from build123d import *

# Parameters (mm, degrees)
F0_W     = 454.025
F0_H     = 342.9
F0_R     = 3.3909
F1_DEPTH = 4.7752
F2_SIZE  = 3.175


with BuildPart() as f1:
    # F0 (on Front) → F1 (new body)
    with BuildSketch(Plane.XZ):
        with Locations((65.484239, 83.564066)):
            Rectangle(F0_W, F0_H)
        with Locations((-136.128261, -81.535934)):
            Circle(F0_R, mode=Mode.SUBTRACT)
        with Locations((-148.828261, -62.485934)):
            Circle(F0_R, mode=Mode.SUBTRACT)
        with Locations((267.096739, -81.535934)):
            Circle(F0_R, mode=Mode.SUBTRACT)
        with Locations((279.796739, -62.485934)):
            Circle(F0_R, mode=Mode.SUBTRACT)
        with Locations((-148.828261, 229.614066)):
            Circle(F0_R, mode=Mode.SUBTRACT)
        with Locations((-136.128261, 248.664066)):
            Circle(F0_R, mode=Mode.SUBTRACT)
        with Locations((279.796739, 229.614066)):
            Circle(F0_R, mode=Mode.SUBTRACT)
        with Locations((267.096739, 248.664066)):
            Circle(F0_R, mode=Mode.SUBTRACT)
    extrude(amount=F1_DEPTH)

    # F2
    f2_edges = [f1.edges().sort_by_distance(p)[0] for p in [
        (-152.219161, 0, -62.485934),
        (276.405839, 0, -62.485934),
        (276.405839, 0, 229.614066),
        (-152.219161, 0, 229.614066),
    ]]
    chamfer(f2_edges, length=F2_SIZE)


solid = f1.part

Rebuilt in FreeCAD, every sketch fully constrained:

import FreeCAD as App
import Part
import Sketcher
from FreeCAD import Vector
Q = App.Units.Quantity


def edges_at(feature, points):
    """Names of the edges that pass closest to the given points."""
    edges = feature.Shape.Edges
    near = lambda p: min(range(len(edges)), key=lambda i: edges[i].distToShape(Part.Vertex(*p))[0])
    return sorted({f"Edge{near(p) + 1}" for p in points})

doc = App.newDocument("Part")
params = doc.addObject("Spreadsheet::Sheet", "Params")
for row, (alias, value) in enumerate([
    ("sketch1_diameter", "0.267 in"),
    ("sketch1_height", "13.5 in"),
    ("sketch1_width", "17.875 in"),
    ("pad1_length", "0.188 in"),
    ("chamfer_size", "0.125 in"),
], start=1):
    params.set(f"A{row}", alias)
    params.set(f"B{row}", "=" + value)
    params.setAlias(f"B{row}", alias)

body = doc.addObject("PartDesign::Body", "Body")

sketch1 = body.newObject("Sketcher::SketchObject", "Sketch")
sketch1.AttachmentSupport = (doc.getObject("XZ_Plane"), [""])
sketch1.MapMode = "FlatFace"
sketch1.addGeometry(Part.LineSegment(Vector(-161.5, 255, 0), Vector(-161.5, -87.9, 0)), False)
sketch1.addGeometry(Part.LineSegment(Vector(-161.5, -87.9, 0), Vector(292.5, -87.9, 0)), False)
sketch1.addGeometry(Part.LineSegment(Vector(292.5, -87.9, 0), Vector(292.5, 255, 0)), False)
sketch1.addGeometry(Part.LineSegment(Vector(292.5, 255, 0), Vector(-161.5, 255, 0)), False)
sketch1.addGeometry(Part.Circle(Vector(-136.1, -81.5, 0), Vector(0, 0, 1), 3.4), False)
sketch1.addGeometry(Part.Circle(Vector(-148.8, -62.5, 0), Vector(0, 0, 1), 3.4), False)
sketch1.addGeometry(Part.Circle(Vector(267.1, -81.5, 0), Vector(0, 0, 1), 3.4), False)
sketch1.addGeometry(Part.Circle(Vector(279.8, -62.5, 0), Vector(0, 0, 1), 3.4), False)
sketch1.addGeometry(Part.Circle(Vector(-148.8, 229.6, 0), Vector(0, 0, 1), 3.4), False)
sketch1.addGeometry(Part.Circle(Vector(-136.1, 248.7, 0), Vector(0, 0, 1), 3.4), False)
sketch1.addGeometry(Part.Circle(Vector(279.8, 229.6, 0), Vector(0, 0, 1), 3.4), False)
sketch1.addGeometry(Part.Circle(Vector(267.1, 248.7, 0), Vector(0, 0, 1), 3.4), False)
sketch1.addConstraint(Sketcher.Constraint("Coincident", 0, 2, 1, 1))
sketch1.addConstraint(Sketcher.Constraint("Coincident", 1, 2, 2, 1))
sketch1.addConstraint(Sketcher.Constraint("Coincident", 2, 2, 3, 1))
sketch1.addConstraint(Sketcher.Constraint("Coincident", 3, 2, 0, 1))
sketch1.addConstraint(Sketcher.Constraint("Vertical", 0))
sketch1.addConstraint(Sketcher.Constraint("Horizontal", 1))
sketch1.addConstraint(Sketcher.Constraint("Vertical", 2))
sketch1.addConstraint(Sketcher.Constraint("Horizontal", 3))
sketch1.addConstraint(Sketcher.Constraint("Equal", 4, 5))
sketch1.addConstraint(Sketcher.Constraint("Equal", 5, 6))
sketch1.addConstraint(Sketcher.Constraint("Equal", 6, 7))
sketch1.addConstraint(Sketcher.Constraint("Equal", 7, 8))
sketch1.addConstraint(Sketcher.Constraint("Equal", 8, 9))
sketch1.addConstraint(Sketcher.Constraint("Equal", 9, 10))
sketch1.addConstraint(Sketcher.Constraint("Equal", 10, 11))
sketch1.addConstraint(Sketcher.Constraint("Horizontal", 4, 3, 6, 3))
sketch1.addConstraint(Sketcher.Constraint("Horizontal", 5, 3, 7, 3))
sketch1.addConstraint(Sketcher.Constraint("Horizontal", 8, 3, 10, 3))
sketch1.addConstraint(Sketcher.Constraint("Horizontal", 9, 3, 11, 3))
sketch1.addConstraint(Sketcher.Constraint("Vertical", 5, 3, 8, 3))
sketch1.addConstraint(Sketcher.Constraint("Vertical", 4, 3, 9, 3))
sketch1.addConstraint(Sketcher.Constraint("Vertical", 7, 3, 10, 3))
sketch1.addConstraint(Sketcher.Constraint("Vertical", 6, 3, 11, 3))
sketch1.addConstraint(Sketcher.Constraint("Diameter", 4, Q("0.267 in")))
sketch1.addConstraint(Sketcher.Constraint("DistanceY", 0, 2, 0, 1, Q("13.5 in")))
sketch1.addConstraint(Sketcher.Constraint("DistanceY", 4, 3, 9, 3, Q("13 in")))
sketch1.addConstraint(Sketcher.Constraint("DistanceX", 0, 2, 4, 3, Q("1 in")))
sketch1.addConstraint(Sketcher.Constraint("DistanceY", 0, 2, 5, 3, Q("1 in")))
sketch1.addConstraint(Sketcher.Constraint("DistanceX", 6, 3, 1, 2, Q("1 in")))
sketch1.addConstraint(Sketcher.Constraint("DistanceY", 10, 3, 2, 2, Q("1 in")))
sketch1.addConstraint(Sketcher.Constraint("DistanceX", 5, 3, 4, 3, Q("0.5 in")))
sketch1.addConstraint(Sketcher.Constraint("DistanceX", 6, 3, 7, 3, Q("0.5 in")))
sketch1.addConstraint(Sketcher.Constraint("DistanceX", 1, 1, 1, 2, Q("17.875 in")))
sketch1.addConstraint(Sketcher.Constraint("DistanceY", 4, 3, 5, 3, Q("0.75 in")))
sketch1.addConstraint(Sketcher.Constraint("DistanceX", 4, 3, -1, 1, 136.128261))
sketch1.addConstraint(Sketcher.Constraint("DistanceY", 4, 3, -1, 1, 81.535934))
sketch1.setExpression("Constraints[23]", "Params.sketch1_diameter")
sketch1.setExpression("Constraints[24]", "Params.sketch1_height")
sketch1.setExpression("Constraints[32]", "Params.sketch1_width")
pad1 = body.newObject("PartDesign::Pad", "Pad")
pad1.Profile = sketch1
pad1.setExpression("Length", "Params.pad1_length")
doc.recompute()

chamfer = body.newObject("PartDesign::Chamfer", "Chamfer")
chamfer.Base = (pad1, edges_at(pad1, [
    (-152.219, 0, -62.486),
    (276.406, 0, -62.486),
    (276.406, 0, 229.614),
    (-152.219, 0, 229.614),
]))
chamfer.setExpression("Size", "Params.chamfer_size")

doc.recompute()
